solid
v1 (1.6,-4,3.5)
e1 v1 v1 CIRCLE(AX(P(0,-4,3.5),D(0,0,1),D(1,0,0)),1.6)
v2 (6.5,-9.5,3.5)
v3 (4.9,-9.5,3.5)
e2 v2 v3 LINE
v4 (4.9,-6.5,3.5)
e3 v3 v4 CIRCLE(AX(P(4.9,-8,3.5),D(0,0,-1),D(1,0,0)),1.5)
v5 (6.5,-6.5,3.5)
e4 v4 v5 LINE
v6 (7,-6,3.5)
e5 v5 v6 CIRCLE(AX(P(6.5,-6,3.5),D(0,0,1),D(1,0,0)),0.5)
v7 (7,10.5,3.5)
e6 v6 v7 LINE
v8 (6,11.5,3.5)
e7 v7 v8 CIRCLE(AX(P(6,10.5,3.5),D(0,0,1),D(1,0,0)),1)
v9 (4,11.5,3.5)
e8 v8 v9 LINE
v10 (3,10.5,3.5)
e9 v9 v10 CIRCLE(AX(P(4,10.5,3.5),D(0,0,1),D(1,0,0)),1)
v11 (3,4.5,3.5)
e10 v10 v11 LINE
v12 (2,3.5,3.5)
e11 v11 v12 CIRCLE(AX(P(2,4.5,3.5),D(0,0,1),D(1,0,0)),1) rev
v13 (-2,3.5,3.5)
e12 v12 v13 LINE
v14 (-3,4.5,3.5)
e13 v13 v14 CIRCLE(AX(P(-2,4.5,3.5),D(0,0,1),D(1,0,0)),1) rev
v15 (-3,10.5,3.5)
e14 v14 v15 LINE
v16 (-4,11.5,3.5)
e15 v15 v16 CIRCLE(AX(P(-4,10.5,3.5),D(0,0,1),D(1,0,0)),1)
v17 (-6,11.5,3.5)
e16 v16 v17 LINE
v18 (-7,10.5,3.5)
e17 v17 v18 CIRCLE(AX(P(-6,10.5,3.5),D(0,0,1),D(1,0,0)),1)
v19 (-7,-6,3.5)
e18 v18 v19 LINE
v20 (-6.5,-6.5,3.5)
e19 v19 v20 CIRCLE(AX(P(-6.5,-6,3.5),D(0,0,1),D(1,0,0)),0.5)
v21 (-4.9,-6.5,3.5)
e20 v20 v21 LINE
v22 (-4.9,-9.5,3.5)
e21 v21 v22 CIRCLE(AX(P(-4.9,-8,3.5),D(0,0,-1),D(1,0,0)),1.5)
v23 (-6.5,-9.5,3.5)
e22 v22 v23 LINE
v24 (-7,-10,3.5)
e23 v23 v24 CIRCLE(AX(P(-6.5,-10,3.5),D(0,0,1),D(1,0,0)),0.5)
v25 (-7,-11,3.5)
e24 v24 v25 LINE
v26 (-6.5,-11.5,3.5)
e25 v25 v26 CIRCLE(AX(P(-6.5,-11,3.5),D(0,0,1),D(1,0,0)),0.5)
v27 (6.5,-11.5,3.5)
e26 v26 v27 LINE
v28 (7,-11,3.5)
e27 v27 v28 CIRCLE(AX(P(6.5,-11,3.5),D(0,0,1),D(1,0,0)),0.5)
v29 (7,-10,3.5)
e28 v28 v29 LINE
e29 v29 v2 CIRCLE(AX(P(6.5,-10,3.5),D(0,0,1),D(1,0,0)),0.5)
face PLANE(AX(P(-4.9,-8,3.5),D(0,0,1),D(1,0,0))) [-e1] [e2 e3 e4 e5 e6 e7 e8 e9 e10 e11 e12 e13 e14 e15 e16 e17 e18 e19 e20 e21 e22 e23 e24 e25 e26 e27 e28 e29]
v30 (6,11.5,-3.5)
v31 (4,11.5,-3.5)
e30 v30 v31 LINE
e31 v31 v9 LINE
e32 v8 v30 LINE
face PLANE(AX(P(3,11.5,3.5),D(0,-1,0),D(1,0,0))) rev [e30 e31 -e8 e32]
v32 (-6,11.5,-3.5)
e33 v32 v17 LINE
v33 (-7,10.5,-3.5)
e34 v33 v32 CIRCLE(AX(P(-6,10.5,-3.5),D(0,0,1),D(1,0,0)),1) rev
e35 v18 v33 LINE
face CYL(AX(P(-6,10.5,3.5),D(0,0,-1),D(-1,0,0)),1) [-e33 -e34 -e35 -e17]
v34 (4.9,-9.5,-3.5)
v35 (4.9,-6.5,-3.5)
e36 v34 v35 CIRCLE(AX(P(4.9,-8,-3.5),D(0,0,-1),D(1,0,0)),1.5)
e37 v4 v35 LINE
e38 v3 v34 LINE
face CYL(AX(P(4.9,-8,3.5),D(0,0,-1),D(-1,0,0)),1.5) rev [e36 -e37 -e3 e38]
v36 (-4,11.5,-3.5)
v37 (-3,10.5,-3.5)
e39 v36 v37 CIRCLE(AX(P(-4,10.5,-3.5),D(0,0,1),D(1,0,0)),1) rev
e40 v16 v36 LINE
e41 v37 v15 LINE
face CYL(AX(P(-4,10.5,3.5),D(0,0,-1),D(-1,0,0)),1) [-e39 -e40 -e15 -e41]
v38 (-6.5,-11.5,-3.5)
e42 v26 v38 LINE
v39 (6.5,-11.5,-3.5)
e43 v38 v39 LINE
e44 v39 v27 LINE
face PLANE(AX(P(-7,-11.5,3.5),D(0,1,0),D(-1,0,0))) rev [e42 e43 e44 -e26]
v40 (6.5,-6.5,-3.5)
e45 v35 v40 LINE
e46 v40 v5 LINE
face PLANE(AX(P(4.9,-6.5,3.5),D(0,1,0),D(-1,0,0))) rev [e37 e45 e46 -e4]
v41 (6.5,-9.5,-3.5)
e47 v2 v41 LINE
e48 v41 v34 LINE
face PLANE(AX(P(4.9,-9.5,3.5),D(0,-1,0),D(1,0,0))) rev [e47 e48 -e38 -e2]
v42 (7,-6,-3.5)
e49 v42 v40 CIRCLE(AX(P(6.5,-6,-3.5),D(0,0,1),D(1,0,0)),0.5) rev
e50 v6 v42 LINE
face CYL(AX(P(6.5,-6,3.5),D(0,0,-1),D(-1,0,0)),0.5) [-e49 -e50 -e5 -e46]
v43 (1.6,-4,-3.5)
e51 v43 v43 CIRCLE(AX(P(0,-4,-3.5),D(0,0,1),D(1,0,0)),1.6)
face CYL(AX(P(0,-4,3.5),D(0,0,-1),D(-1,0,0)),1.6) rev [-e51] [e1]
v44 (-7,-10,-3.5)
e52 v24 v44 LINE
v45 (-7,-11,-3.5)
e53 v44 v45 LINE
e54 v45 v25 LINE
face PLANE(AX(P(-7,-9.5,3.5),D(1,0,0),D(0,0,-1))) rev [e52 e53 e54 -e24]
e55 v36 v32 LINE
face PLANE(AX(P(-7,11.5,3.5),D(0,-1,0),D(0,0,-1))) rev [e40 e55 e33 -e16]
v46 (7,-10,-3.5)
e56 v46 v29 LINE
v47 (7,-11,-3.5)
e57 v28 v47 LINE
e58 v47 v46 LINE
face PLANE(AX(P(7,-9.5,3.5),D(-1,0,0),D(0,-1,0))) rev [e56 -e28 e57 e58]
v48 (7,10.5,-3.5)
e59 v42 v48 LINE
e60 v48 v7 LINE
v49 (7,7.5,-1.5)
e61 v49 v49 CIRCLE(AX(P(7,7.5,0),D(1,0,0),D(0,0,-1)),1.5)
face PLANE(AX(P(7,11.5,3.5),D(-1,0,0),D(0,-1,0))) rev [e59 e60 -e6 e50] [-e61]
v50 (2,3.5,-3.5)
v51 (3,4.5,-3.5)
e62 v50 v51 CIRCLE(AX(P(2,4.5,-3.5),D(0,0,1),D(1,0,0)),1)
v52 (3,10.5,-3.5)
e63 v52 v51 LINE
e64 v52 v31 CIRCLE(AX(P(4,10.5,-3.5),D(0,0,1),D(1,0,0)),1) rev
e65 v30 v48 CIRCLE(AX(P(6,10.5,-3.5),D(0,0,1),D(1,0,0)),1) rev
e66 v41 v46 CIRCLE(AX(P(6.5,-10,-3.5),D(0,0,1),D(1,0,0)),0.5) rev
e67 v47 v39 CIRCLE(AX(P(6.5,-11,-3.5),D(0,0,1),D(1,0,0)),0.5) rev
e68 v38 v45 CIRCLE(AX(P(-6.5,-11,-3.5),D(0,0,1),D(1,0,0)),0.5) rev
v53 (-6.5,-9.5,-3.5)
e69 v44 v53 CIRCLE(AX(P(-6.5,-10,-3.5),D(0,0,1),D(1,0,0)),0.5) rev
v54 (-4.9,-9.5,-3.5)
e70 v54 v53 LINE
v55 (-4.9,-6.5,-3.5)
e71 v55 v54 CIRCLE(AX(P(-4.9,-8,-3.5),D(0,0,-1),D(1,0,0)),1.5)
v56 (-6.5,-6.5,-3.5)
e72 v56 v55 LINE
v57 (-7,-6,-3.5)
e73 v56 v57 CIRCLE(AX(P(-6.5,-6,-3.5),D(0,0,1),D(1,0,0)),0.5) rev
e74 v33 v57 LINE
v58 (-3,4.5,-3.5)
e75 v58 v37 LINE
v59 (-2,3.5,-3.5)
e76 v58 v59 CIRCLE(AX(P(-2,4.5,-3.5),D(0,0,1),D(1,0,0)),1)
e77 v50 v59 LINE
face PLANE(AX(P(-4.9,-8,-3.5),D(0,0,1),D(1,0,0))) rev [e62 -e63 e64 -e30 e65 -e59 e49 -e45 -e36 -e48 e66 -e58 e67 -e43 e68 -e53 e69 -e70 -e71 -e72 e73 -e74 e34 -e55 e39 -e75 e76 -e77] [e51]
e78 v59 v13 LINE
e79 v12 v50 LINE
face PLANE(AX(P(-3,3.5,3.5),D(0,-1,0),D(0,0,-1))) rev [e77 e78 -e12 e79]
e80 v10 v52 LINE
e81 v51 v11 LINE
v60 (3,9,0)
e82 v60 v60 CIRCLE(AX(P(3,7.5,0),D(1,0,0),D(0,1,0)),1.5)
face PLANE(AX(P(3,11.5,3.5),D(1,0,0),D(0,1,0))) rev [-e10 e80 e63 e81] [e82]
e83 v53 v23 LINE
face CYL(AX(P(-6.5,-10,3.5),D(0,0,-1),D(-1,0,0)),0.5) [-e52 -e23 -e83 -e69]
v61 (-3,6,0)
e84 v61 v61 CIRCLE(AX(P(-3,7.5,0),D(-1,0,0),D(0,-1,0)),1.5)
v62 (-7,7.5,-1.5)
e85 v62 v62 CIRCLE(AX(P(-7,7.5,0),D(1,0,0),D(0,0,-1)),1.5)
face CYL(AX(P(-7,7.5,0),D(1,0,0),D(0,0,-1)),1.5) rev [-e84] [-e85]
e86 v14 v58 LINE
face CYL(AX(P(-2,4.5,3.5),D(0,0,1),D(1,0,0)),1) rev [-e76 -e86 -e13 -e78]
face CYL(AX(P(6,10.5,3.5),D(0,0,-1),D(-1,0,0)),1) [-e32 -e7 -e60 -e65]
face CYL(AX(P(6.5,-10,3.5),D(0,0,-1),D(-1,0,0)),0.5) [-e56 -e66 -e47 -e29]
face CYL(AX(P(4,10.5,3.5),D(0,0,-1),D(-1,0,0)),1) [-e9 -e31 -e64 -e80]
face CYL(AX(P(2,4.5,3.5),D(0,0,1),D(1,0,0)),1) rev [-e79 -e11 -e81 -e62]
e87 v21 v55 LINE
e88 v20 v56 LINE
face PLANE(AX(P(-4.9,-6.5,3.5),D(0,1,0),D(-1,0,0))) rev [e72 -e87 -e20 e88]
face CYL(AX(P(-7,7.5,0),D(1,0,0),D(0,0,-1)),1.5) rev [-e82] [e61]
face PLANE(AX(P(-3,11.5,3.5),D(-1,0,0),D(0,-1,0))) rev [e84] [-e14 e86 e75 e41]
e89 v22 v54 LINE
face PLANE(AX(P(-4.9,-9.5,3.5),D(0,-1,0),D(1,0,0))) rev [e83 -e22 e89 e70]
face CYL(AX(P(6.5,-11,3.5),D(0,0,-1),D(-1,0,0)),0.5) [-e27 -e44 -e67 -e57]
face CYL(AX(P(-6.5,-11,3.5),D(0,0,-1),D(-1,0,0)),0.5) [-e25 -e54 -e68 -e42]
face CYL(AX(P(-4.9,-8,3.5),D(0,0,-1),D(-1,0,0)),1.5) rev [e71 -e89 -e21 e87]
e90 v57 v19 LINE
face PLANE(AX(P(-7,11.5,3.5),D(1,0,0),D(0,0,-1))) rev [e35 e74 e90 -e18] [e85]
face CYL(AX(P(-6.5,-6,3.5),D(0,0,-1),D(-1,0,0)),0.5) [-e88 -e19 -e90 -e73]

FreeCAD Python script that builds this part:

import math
import FreeCAD as App
import Part
import Sketcher
from FreeCAD import Vector


def edges_at(feature, points):
    """Names of the edges that pass closest to the given points."""
    edges = feature.Shape.Edges
    near = lambda p: min(range(len(edges)), key=lambda i: edges[i].distToShape(Part.Vertex(*p))[0])
    return sorted({f"Edge{near(p) + 1}" for p in points})

doc = App.newDocument("Part")
body = doc.addObject("PartDesign::Body", "Body")

# Sketch on XY plane
sketch1 = body.newObject("Sketcher::SketchObject", "Sketch")
sketch1.AttachmentSupport = (doc.getObject("XY_Plane"), [""])
sketch1.MapMode = "FlatFace"
sketch1.addGeometry([
    Part.LineSegment(Vector(7, 11.5, 0), Vector(3, 11.5, 0)),  # 0
    Part.LineSegment(Vector(3, 11.5, 0), Vector(3, 3.5, 0)),  # 1
    Part.LineSegment(Vector(3, 3.5, 0), Vector(-3, 3.5, 0)),  # 2
    Part.LineSegment(Vector(-3, 3.5, 0), Vector(-3, 11.5, 0)),  # 3
    Part.LineSegment(Vector(-3, 11.5, 0), Vector(-7, 11.5, 0)),  # 4
    Part.LineSegment(Vector(-7, 11.5, 0), Vector(-7, -6.5, 0)),  # 5
    Part.LineSegment(Vector(-7, -6.5, 0), Vector(-4.9, -6.5, 0)),  # 6
    Part.ArcOfCircle(Part.Circle(Vector(-4.9, -8, 0), Vector(0, 0, 1), 1.5), math.radians(-90), math.radians(90)),  # 7
    Part.LineSegment(Vector(-4.9, -9.5, 0), Vector(-7, -9.5, 0)),  # 8
    Part.LineSegment(Vector(-7, -9.5, 0), Vector(-7, -11.5, 0)),  # 9
    Part.LineSegment(Vector(-7, -11.5, 0), Vector(7, -11.5, 0)),  # 10
    Part.LineSegment(Vector(7, -11.5, 0), Vector(7, -9.5, 0)),  # 11
    Part.LineSegment(Vector(7, -9.5, 0), Vector(4.9, -9.5, 0)),  # 12
    Part.ArcOfCircle(Part.Circle(Vector(4.9, -8, 0), Vector(0, 0, 1), 1.5), math.radians(90), math.radians(270)),  # 13
    Part.LineSegment(Vector(4.9, -6.5, 0), Vector(7, -6.5, 0)),  # 14
    Part.LineSegment(Vector(7, -6.5, 0), Vector(7, 11.5, 0)),  # 15
    Part.Circle(Vector(0, -4, 0), Vector(0, 0, 1), 1.6),  # 16
], False)
sketch1.addConstraint([
    Sketcher.Constraint("Coincident", 0, 2, 1, 1),
    Sketcher.Constraint("Coincident", 1, 2, 2, 1),
    Sketcher.Constraint("Coincident", 2, 2, 3, 1),
    Sketcher.Constraint("Coincident", 3, 2, 4, 1),
    Sketcher.Constraint("Coincident", 4, 2, 5, 1),
    Sketcher.Constraint("Coincident", 5, 2, 6, 1),
    Sketcher.Constraint("Tangent", 6, 2, 7, 2),
    Sketcher.Constraint("Tangent", 7, 1, 8, 1),
    Sketcher.Constraint("Coincident", 8, 2, 9, 1),
    Sketcher.Constraint("Coincident", 9, 2, 10, 1),
    Sketcher.Constraint("Coincident", 10, 2, 11, 1),
    Sketcher.Constraint("Coincident", 11, 2, 12, 1),
    Sketcher.Constraint("Tangent", 12, 2, 13, 2),
    Sketcher.Constraint("Tangent", 13, 1, 14, 1),
    Sketcher.Constraint("Coincident", 14, 2, 15, 1),
    Sketcher.Constraint("Coincident", 15, 2, 0, 1),
    Sketcher.Constraint("Horizontal", 0),
    Sketcher.Constraint("Vertical", 1),
    Sketcher.Constraint("Horizontal", 2),
    Sketcher.Constraint("Vertical", 3),
    Sketcher.Constraint("Horizontal", 4),
    Sketcher.Constraint("Vertical", 5),
    Sketcher.Constraint("Horizontal", 6),
    Sketcher.Constraint("Horizontal", 8),
    Sketcher.Constraint("Vertical", 9),
    Sketcher.Constraint("Horizontal", 10),
    Sketcher.Constraint("Vertical", 11),
    Sketcher.Constraint("Horizontal", 12),
    Sketcher.Constraint("Horizontal", 14),
    Sketcher.Constraint("Vertical", 15),
    Sketcher.Constraint("Equal", 7, 13),
    Sketcher.Constraint("Symmetric", 4, 2, 10, 2, -1, 1),
    Sketcher.Constraint("Symmetric", 9, 2, 15, 2, -1, 1),
    Sketcher.Constraint("Symmetric", 7, 3, 13, 3, -2),
    Sketcher.Constraint("PointOnObject", 16, 3, -2),
    Sketcher.Constraint("Vertical", 5, 2, 8, 2),
    Sketcher.Constraint("Equal", 0, 4),
    Sketcher.Constraint("Diameter", 16, 3.2),
    Sketcher.Constraint("Radius", 7, 1.5),
    Sketcher.Constraint("DistanceX", 0, 2, 0, 1, 4.0),
    Sketcher.Constraint("DistanceX", 2, 2, 2, 1, 6.0),
    Sketcher.Constraint("DistanceY", 1, 2, 1, 1, 8.0),
    Sketcher.Constraint("DistanceY", 5, 2, 5, 1, 18.0),
    Sketcher.Constraint("DistanceY", 9, 2, 9, 1, 2.0),
    Sketcher.Constraint("DistanceX", 6, 1, 6, 2, 2.1),
    Sketcher.Constraint("DistanceY", 16, 3, -1, 1, 4.0),
])
pad1 = body.newObject("PartDesign::Pad", "Pad")
pad1.Profile = sketch1
pad1.Length = 7
pad1.Midplane = True

# Sketch on YZ plane
sketch2 = body.newObject("Sketcher::SketchObject", "Sketch001")
sketch2.AttachmentSupport = (doc.getObject("YZ_Plane"), [""])
sketch2.MapMode = "FlatFace"
sketch2.addGeometry(Part.Circle(Vector(7.5, 0, 0), Vector(0, 0, 1), 1.5), False)
sketch2.addConstraint([
    Sketcher.Constraint("PointOnObject", 0, 3, -1),
    Sketcher.Constraint("Diameter", 0, 3.0),
    Sketcher.Constraint("DistanceX", -1, 1, 0, 3, 7.5),
])
pocket1 = body.newObject("PartDesign::Pocket", "Pocket")
pocket1.Profile = sketch2
pocket1.Type = "ThroughAll"
pocket1.Midplane = True
doc.recompute()

fillet = body.newObject("PartDesign::Fillet", "Fillet")
fillet.Base = (pocket1, edges_at(pocket1, [
    (-7, 11.5, 0),
    (-3, 11.5, 0),
    (-3, 3.5, 0),
    (3, 3.5, 0),
    (3, 11.5, 0),
    (7, 11.5, 0),
]))
fillet.Radius = 1
doc.recompute()

fillet2 = body.newObject("PartDesign::Fillet", "Fillet001")
fillet2.Base = (fillet, edges_at(fillet, [
    (7, -11.5, 0),
    (-7, -11.5, 0),
    (-7, -9.5, 0),
    (-7, -6.5, 0),
    (7, -6.5, 0),
    (7, -9.5, 0),
]))
fillet2.Radius = 0.5

doc.recompute()
